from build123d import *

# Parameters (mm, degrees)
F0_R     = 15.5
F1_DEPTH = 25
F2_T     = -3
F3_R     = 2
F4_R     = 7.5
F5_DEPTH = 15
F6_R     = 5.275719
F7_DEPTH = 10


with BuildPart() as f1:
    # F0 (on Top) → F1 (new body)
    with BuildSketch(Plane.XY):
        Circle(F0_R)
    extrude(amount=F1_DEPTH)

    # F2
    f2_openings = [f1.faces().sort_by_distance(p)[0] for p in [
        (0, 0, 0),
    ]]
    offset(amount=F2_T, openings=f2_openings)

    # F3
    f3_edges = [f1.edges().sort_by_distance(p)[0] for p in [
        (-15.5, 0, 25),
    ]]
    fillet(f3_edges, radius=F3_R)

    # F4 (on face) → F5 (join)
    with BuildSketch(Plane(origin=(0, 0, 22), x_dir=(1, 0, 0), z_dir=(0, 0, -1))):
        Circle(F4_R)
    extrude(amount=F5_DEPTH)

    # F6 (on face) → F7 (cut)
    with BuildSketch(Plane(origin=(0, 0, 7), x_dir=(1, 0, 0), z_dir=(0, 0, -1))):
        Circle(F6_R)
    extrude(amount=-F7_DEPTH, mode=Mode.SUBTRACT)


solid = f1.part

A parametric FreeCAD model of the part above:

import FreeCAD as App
import Part
import Sketcher
from FreeCAD import Vector
Q = App.Units.Quantity


def edges_at(feature, points):
    """Names of the edges that pass closest to the given points."""
    edges = feature.Shape.Edges
    near = lambda p: min(range(len(edges)), key=lambda i: edges[i].distToShape(Part.Vertex(*p))[0])
    return sorted({f"Edge{near(p) + 1}" for p in points})


def faces_at(feature, points):
    """Names of the faces that lie closest to the given points."""
    faces = feature.Shape.Faces
    near = lambda p: min(range(len(faces)), key=lambda i: faces[i].distToShape(Part.Vertex(*p))[0])
    return sorted({f"Face{near(p) + 1}" for p in points})

doc = App.newDocument("Part")
params = doc.addObject("Spreadsheet::Sheet", "Params")
for row, (alias, value) in enumerate([
    ("sketch1_diameter", "31 mm"),
    ("pad1_length", "25 mm"),
    ("thickness_wall", "3 mm"),
    ("fillet_radius", "2 mm"),
    ("sketch2_diameter", "15 mm"),
    ("pad2_length", "15 mm"),
    ("pocket1_length", "10 mm"),
], start=1):
    params.set(f"A{row}", alias)
    params.set(f"B{row}", "=" + value)
    params.setAlias(f"B{row}", alias)

body = doc.addObject("PartDesign::Body", "Body")

# Sketch on XY plane
sketch1 = body.newObject("Sketcher::SketchObject", "Sketch")
sketch1.AttachmentSupport = (doc.getObject("XY_Plane"), [""])
sketch1.MapMode = "FlatFace"
sketch1.addGeometry(Part.Circle(Vector(0, 0, 0), Vector(0, 0, 1), 15.5), False)
sketch1.addConstraint(Sketcher.Constraint("Coincident", 0, 3, -1, 1))
sketch1.addConstraint(Sketcher.Constraint("Diameter", 0, Q("31 mm")))
sketch1.setExpression("Constraints[1]", "Params.sketch1_diameter")
pad1 = body.newObject("PartDesign::Pad", "Pad")
pad1.Profile = sketch1
pad1.setExpression("Length", "Params.pad1_length")
doc.recompute()

thickness = body.newObject("PartDesign::Thickness", "Thickness")
thickness.Base = (pad1, faces_at(pad1, [(0, 0, 0)]))
thickness.setExpression("Value", "Params.thickness_wall")
thickness.Reversed = True
thickness.Join = "Arc"
doc.recompute()

fillet = body.newObject("PartDesign::Fillet", "Fillet")
fillet.Base = (thickness, edges_at(thickness, [(-15.5, 0, 25)]))
fillet.setExpression("Radius", "Params.fillet_radius")

# Sketch on XY plane
sketch2 = body.newObject("Sketcher::SketchObject", "Sketch001")
sketch2.AttachmentSupport = (doc.getObject("XY_Plane"), [""])
sketch2.MapMode = "FlatFace"
sketch2.AttachmentOffset = App.Placement(Vector(0, 0, 22), App.Rotation())
sketch2.addGeometry(Part.Circle(Vector(0, 0, 0), Vector(0, 0, 1), 7.5), False)
sketch2.addConstraint(Sketcher.Constraint("Coincident", 0, 3, -1, 1))
sketch2.addConstraint(Sketcher.Constraint("Diameter", 0, Q("15 mm")))
sketch2.setExpression("Constraints[1]", "Params.sketch2_diameter")
pad2 = body.newObject("PartDesign::Pad", "Pad001")
pad2.Profile = sketch2
pad2.setExpression("Length", "Params.pad2_length")
pad2.Reversed = True

# Sketch on XY plane
sketch3 = body.newObject("Sketcher::SketchObject", "Sketch002")
sketch3.AttachmentSupport = (doc.getObject("XY_Plane"), [""])
sketch3.MapMode = "FlatFace"
sketch3.AttachmentOffset = App.Placement(Vector(0, 0, 7), App.Rotation())
sketch3.addGeometry(Part.Circle(Vector(0, 0, 0), Vector(0, 0, 1), 5.275719), False)
sketch3.addConstraint(Sketcher.Constraint("Coincident", 0, 3, -1, 1))
sketch3.addConstraint(Sketcher.Constraint("Diameter", 0, Q("10.551438 mm")))
pocket1 = body.newObject("PartDesign::Pocket", "Pocket")
pocket1.Profile = sketch3
pocket1.setExpression("Length", "Params.pocket1_length")
pocket1.Reversed = True

doc.recompute()
